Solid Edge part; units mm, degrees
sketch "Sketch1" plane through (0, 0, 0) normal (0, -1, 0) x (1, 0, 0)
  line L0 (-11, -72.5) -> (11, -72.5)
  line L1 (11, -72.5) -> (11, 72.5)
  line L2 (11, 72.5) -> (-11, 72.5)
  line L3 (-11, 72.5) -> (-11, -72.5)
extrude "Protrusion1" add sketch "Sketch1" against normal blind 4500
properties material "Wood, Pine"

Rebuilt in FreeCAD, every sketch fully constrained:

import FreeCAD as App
import Part
import Sketcher
Q = App.Units.Quantity

doc = App.newDocument("Part")
body = doc.addObject("PartDesign::Body", "Body")

sketch1 = body.newObject("Sketcher::SketchObject", "Sketch")
sketch1.AttachmentSupport = (doc.getObject("XZ_Plane"), [""])
sketch1.MapMode = "FlatFace"
sketch1.addGeometry([
    Part.LineSegment(App.Vector(-11, 72, 0), App.Vector(-11, -72, 0)),
    Part.LineSegment(App.Vector(-11, -72, 0), App.Vector(11, -72, 0)),
    Part.LineSegment(App.Vector(11, -72, 0), App.Vector(11, 72, 0)),
    Part.LineSegment(App.Vector(11, 72, 0), App.Vector(-11, 72, 0)),
], False)
sketch1.addConstraint([
    Sketcher.Constraint("Coincident", 0, 2, 1, 1),
    Sketcher.Constraint("Coincident", 1, 2, 2, 1),
    Sketcher.Constraint("Coincident", 2, 2, 3, 1),
    Sketcher.Constraint("Coincident", 3, 2, 0, 1),
    Sketcher.Constraint("Vertical", 0),
    Sketcher.Constraint("Horizontal", 1),
    Sketcher.Constraint("Vertical", 2),
    Sketcher.Constraint("Horizontal", 3),
    Sketcher.Constraint("Symmetric", 0, 2, 2, 2, -1, 1),
    Sketcher.Constraint("DistanceX", 1, 1, 1, 2, Q("22 mm")),
    Sketcher.Constraint("DistanceY", 0, 2, 0, 1, Q("145 mm")),
])
pad1 = body.newObject("PartDesign::Pad", "Pad")
pad1.Profile = sketch1
pad1.Length = 4500
pad1.Reversed = True

doc.recompute()
